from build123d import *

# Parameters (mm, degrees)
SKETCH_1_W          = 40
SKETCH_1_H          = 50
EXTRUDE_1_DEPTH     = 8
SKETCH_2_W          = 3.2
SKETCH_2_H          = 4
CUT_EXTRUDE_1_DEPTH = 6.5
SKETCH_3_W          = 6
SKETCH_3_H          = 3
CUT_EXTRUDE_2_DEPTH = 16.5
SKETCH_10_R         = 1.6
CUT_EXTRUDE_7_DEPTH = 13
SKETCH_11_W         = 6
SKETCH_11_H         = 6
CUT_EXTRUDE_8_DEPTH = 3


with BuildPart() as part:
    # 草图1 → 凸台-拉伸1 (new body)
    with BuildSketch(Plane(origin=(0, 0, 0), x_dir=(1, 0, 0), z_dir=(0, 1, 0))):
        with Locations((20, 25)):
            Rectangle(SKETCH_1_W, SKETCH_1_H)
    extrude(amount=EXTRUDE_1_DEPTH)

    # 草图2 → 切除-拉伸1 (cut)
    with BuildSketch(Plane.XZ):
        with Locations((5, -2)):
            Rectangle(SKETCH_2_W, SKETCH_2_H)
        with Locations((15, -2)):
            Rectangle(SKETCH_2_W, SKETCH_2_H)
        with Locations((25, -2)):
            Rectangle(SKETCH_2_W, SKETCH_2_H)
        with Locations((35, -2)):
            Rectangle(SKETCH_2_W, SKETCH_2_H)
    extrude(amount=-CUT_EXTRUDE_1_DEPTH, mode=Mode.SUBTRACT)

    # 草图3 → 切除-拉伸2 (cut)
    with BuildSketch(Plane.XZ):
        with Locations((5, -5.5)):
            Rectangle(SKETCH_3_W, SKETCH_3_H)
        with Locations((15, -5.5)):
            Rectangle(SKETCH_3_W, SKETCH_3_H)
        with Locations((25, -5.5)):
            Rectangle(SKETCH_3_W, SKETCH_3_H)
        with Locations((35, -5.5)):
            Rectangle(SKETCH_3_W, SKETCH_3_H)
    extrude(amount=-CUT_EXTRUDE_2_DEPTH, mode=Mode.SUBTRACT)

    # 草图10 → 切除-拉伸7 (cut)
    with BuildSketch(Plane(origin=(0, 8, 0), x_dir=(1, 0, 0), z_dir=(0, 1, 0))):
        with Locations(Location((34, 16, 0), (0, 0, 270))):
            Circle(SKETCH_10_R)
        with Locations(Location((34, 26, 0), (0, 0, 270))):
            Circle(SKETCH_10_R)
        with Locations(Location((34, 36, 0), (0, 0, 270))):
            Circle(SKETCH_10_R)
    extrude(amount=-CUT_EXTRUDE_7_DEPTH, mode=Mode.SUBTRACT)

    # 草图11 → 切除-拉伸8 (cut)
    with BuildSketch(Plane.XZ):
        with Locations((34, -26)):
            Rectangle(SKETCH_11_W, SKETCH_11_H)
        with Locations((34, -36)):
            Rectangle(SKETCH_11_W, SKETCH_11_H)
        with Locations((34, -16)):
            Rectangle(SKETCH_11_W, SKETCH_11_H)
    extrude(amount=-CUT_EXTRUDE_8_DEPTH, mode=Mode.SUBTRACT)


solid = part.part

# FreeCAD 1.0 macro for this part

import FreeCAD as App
import Part
import Sketcher
Q = App.Units.Quantity

doc = App.newDocument("Part")
params = doc.addObject("Spreadsheet::Sheet", "Params")
for row, (alias, value) in enumerate([
    ("sketch1_width", "40 mm"),
    ("sketch1_height", "50 mm"),
    ("pad1_length", "8 mm"),
    ("sketch2_height", "4 mm"),
    ("sketch2_width", "3.2 mm"),
    ("pocket1_length", "6.5 mm"),
    ("sketch3_width", "6 mm"),
    ("sketch3_height", "3 mm"),
    ("pocket2_length", "16.5 mm"),
    ("sketch4_diameter", "3.2 mm"),
    ("pocket3_length", "13 mm"),
    ("sketch5_width", "6 mm"),
    ("pocket4_length", "3 mm"),
], start=1):
    params.set(f"A{row}", alias)
    params.set(f"B{row}", "=" + value)
    params.setAlias(f"B{row}", alias)

body = doc.addObject("PartDesign::Body", "Body")

sketch1 = doc.addObject("Sketcher::SketchObject", "Sketch")
body.addObject(sketch1)
sketch1.AttachmentSupport = (doc.XZ_Plane, [""])
sketch1.MapMode = "FlatFace"
sketch1.addGeometry(Part.LineSegment(App.Vector(0, -50, 0), App.Vector(0, 0, 0)), False)
sketch1.addGeometry(Part.LineSegment(App.Vector(0, 0, 0), App.Vector(40, 0, 0)), False)
sketch1.addGeometry(Part.LineSegment(App.Vector(40, 0, 0), App.Vector(40, -50, 0)), False)
sketch1.addGeometry(Part.LineSegment(App.Vector(40, -50, 0), App.Vector(0, -50, 0)), False)
sketch1.addConstraint(Sketcher.Constraint("Coincident", 0, 2, 1, 1))
sketch1.addConstraint(Sketcher.Constraint("Coincident", 1, 2, 2, 1))
sketch1.addConstraint(Sketcher.Constraint("Coincident", 2, 2, 3, 1))
sketch1.addConstraint(Sketcher.Constraint("Coincident", 3, 2, 0, 1))
sketch1.addConstraint(Sketcher.Constraint("Vertical", 0))
sketch1.addConstraint(Sketcher.Constraint("Horizontal", 1))
sketch1.addConstraint(Sketcher.Constraint("Vertical", 2))
sketch1.addConstraint(Sketcher.Constraint("Horizontal", 3))
sketch1.addConstraint(Sketcher.Constraint("Coincident", 0, 2, -1, 1))
sketch1.addConstraint(Sketcher.Constraint("DistanceX", 1, 1, 1, 2, Q("40 mm")))
sketch1.addConstraint(Sketcher.Constraint("DistanceY", 0, 1, 0, 2, Q("50 mm")))
sketch1.setExpression("Constraints[9]", "Params.sketch1_width")
sketch1.setExpression("Constraints[10]", "Params.sketch1_height")
pad1 = doc.addObject("PartDesign::Pad", "Pad")
body.addObject(pad1)
pad1.Profile = sketch1
pad1.setExpression("Length", "Params.pad1_length")
pad1.Reversed = True

sketch2 = doc.addObject("Sketcher::SketchObject", "Sketch001")
body.addObject(sketch2)
sketch2.AttachmentSupport = (doc.XZ_Plane, [""])
sketch2.MapMode = "FlatFace"
sketch2.addGeometry(Part.LineSegment(App.Vector(3.4, 0, 0), App.Vector(3.4, -4, 0)), False)
sketch2.addGeometry(Part.LineSegment(App.Vector(3.4, -4, 0), App.Vector(6.6, -4, 0)), False)
sketch2.addGeometry(Part.LineSegment(App.Vector(6.6, -4, 0), App.Vector(6.6, 0, 0)), False)
sketch2.addGeometry(Part.LineSegment(App.Vector(6.6, 0, 0), App.Vector(3.4, 0, 0)), False)
sketch2.addGeometry(Part.LineSegment(App.Vector(13.4, 0, 0), App.Vector(13.4, -4, 0)), False)
sketch2.addGeometry(Part.LineSegment(App.Vector(13.4, -4, 0), App.Vector(16.6, -4, 0)), False)
sketch2.addGeometry(Part.LineSegment(App.Vector(16.6, -4, 0), App.Vector(16.6, 0, 0)), False)
sketch2.addGeometry(Part.LineSegment(App.Vector(16.6, 0, 0), App.Vector(13.4, 0, 0)), False)
sketch2.addGeometry(Part.LineSegment(App.Vector(23.4, 0, 0), App.Vector(23.4, -4, 0)), False)
sketch2.addGeometry(Part.LineSegment(App.Vector(23.4, -4, 0), App.Vector(26.6, -4, 0)), False)
sketch2.addGeometry(Part.LineSegment(App.Vector(26.6, -4, 0), App.Vector(26.6, 0, 0)), False)
sketch2.addGeometry(Part.LineSegment(App.Vector(26.6, 0, 0), App.Vector(23.4, 0, 0)), False)
sketch2.addGeometry(Part.LineSegment(App.Vector(33.4, 0, 0), App.Vector(33.4, -4, 0)), False)
sketch2.addGeometry(Part.LineSegment(App.Vector(33.4, -4, 0), App.Vector(36.6, -4, 0)), False)
sketch2.addGeometry(Part.LineSegment(App.Vector(36.6, -4, 0), App.Vector(36.6, 0, 0)), False)
sketch2.addGeometry(Part.LineSegment(App.Vector(36.6, 0, 0), App.Vector(33.4, 0, 0)), False)
sketch2.addConstraint(Sketcher.Constraint("Coincident", 0, 2, 1, 1))
sketch2.addConstraint(Sketcher.Constraint("Coincident", 1, 2, 2, 1))
sketch2.addConstraint(Sketcher.Constraint("Coincident", 2, 2, 3, 1))
sketch2.addConstraint(Sketcher.Constraint("Coincident", 3, 2, 0, 1))
sketch2.addConstraint(Sketcher.Constraint("Coincident", 4, 2, 5, 1))
sketch2.addConstraint(Sketcher.Constraint("Coincident", 5, 2, 6, 1))
sketch2.addConstraint(Sketcher.Constraint("Coincident", 6, 2, 7, 1))
sketch2.addConstraint(Sketcher.Constraint("Coincident", 7, 2, 4, 1))
sketch2.addConstraint(Sketcher.Constraint("Coincident", 8, 2, 9, 1))
sketch2.addConstraint(Sketcher.Constraint("Coincident", 9, 2, 10, 1))
sketch2.addConstraint(Sketcher.Constraint("Coincident", 10, 2, 11, 1))
sketch2.addConstraint(Sketcher.Constraint("Coincident", 11, 2, 8, 1))
sketch2.addConstraint(Sketcher.Constraint("Coincident", 12, 2, 13, 1))
sketch2.addConstraint(Sketcher.Constraint("Coincident", 13, 2, 14, 1))
sketch2.addConstraint(Sketcher.Constraint("Coincident", 14, 2, 15, 1))
sketch2.addConstraint(Sketcher.Constraint("Coincident", 15, 2, 12, 1))
sketch2.addConstraint(Sketcher.Constraint("Vertical", 0))
sketch2.addConstraint(Sketcher.Constraint("Horizontal", 1))
sketch2.addConstraint(Sketcher.Constraint("Vertical", 2))
sketch2.addConstraint(Sketcher.Constraint("Horizontal", 3))
sketch2.addConstraint(Sketcher.Constraint("Vertical", 4))
sketch2.addConstraint(Sketcher.Constraint("Horizontal", 5))
sketch2.addConstraint(Sketcher.Constraint("Vertical", 6))
sketch2.addConstraint(Sketcher.Constraint("Horizontal", 7))
sketch2.addConstraint(Sketcher.Constraint("Vertical", 8))
sketch2.addConstraint(Sketcher.Constraint("Horizontal", 9))
sketch2.addConstraint(Sketcher.Constraint("Vertical", 10))
sketch2.addConstraint(Sketcher.Constraint("Horizontal", 11))
sketch2.addConstraint(Sketcher.Constraint("Vertical", 12))
sketch2.addConstraint(Sketcher.Constraint("Horizontal", 13))
sketch2.addConstraint(Sketcher.Constraint("Vertical", 14))
sketch2.addConstraint(Sketcher.Constraint("Horizontal", 15))
sketch2.addConstraint(Sketcher.Constraint("PointOnObject", 2, 2, -1))
sketch2.addConstraint(Sketcher.Constraint("PointOnObject", 6, 2, -1))
sketch2.addConstraint(Sketcher.Constraint("PointOnObject", 10, 2, -1))
sketch2.addConstraint(Sketcher.Constraint("PointOnObject", 14, 2, -1))
sketch2.addConstraint(Sketcher.Constraint("Horizontal", 1, 2, 4, 2))
sketch2.addConstraint(Sketcher.Constraint("Horizontal", 5, 2, 8, 2))
sketch2.addConstraint(Sketcher.Constraint("Horizontal", 9, 2, 12, 2))
sketch2.addConstraint(Sketcher.Constraint("Equal", 3, 5))
sketch2.addConstraint(Sketcher.Constraint("Equal", 7, 9))
sketch2.addConstraint(Sketcher.Constraint("Equal", 11, 13))
sketch2.addConstraint(Sketcher.Constraint("DistanceY", 0, 2, 0, 1, Q("4 mm")))
sketch2.addConstraint(Sketcher.Constraint("DistanceX", 1, 1, 1, 2, Q("3.2 mm")))
sketch2.addConstraint(Sketcher.Constraint("DistanceX", 0, 2, 4, 2, Q("10 mm")))
sketch2.addConstraint(Sketcher.Constraint("DistanceX", 4, 2, 8, 2, Q("10 mm")))
sketch2.addConstraint(Sketcher.Constraint("DistanceX", 8, 2, 12, 2, Q("10 mm")))
sketch2.addConstraint(Sketcher.Constraint("DistanceX", -1, 1, 0, 2, Q("3.4 mm")))
sketch2.setExpression("Constraints[42]", "Params.sketch2_height")
sketch2.setExpression("Constraints[43]", "Params.sketch2_width")
pocket1 = doc.addObject("PartDesign::Pocket", "Pocket")
body.addObject(pocket1)
pocket1.Profile = sketch2
pocket1.setExpression("Length", "Params.pocket1_length")

sketch3 = doc.addObject("Sketcher::SketchObject", "Sketch002")
body.addObject(sketch3)
sketch3.AttachmentSupport = (doc.XZ_Plane, [""])
sketch3.MapMode = "FlatFace"
sketch3.addGeometry(Part.LineSegment(App.Vector(2, -4, 0), App.Vector(2, -7, 0)), False)
sketch3.addGeometry(Part.LineSegment(App.Vector(2, -7, 0), App.Vector(8, -7, 0)), False)
sketch3.addGeometry(Part.LineSegment(App.Vector(8, -7, 0), App.Vector(8, -4, 0)), False)
sketch3.addGeometry(Part.LineSegment(App.Vector(8, -4, 0), App.Vector(2, -4, 0)), False)
sketch3.addGeometry(Part.LineSegment(App.Vector(12, -4, 0), App.Vector(12, -7, 0)), False)
sketch3.addGeometry(Part.LineSegment(App.Vector(12, -7, 0), App.Vector(18, -7, 0)), False)
sketch3.addGeometry(Part.LineSegment(App.Vector(18, -7, 0), App.Vector(18, -4, 0)), False)
sketch3.addGeometry(Part.LineSegment(App.Vector(18, -4, 0), App.Vector(12, -4, 0)), False)
sketch3.addGeometry(Part.LineSegment(App.Vector(22, -4, 0), App.Vector(22, -7, 0)), False)
sketch3.addGeometry(Part.LineSegment(App.Vector(22, -7, 0), App.Vector(28, -7, 0)), False)
sketch3.addGeometry(Part.LineSegment(App.Vector(28, -7, 0), App.Vector(28, -4, 0)), False)
sketch3.addGeometry(Part.LineSegment(App.Vector(28, -4, 0), App.Vector(22, -4, 0)), False)
sketch3.addGeometry(Part.LineSegment(App.Vector(32, -4, 0), App.Vector(32, -7, 0)), False)
sketch3.addGeometry(Part.LineSegment(App.Vector(32, -7, 0), App.Vector(38, -7, 0)), False)
sketch3.addGeometry(Part.LineSegment(App.Vector(38, -7, 0), App.Vector(38, -4, 0)), False)
sketch3.addGeometry(Part.LineSegment(App.Vector(38, -4, 0), App.Vector(32, -4, 0)), False)
sketch3.addConstraint(Sketcher.Constraint("Coincident", 0, 2, 1, 1))
sketch3.addConstraint(Sketcher.Constraint("Coincident", 1, 2, 2, 1))
sketch3.addConstraint(Sketcher.Constraint("Coincident", 2, 2, 3, 1))
sketch3.addConstraint(Sketcher.Constraint("Coincident", 3, 2, 0, 1))
sketch3.addConstraint(Sketcher.Constraint("Coincident", 4, 2, 5, 1))
sketch3.addConstraint(Sketcher.Constraint("Coincident", 5, 2, 6, 1))
sketch3.addConstraint(Sketcher.Constraint("Coincident", 6, 2, 7, 1))
sketch3.addConstraint(Sketcher.Constraint("Coincident", 7, 2, 4, 1))
sketch3.addConstraint(Sketcher.Constraint("Coincident", 8, 2, 9, 1))
sketch3.addConstraint(Sketcher.Constraint("Coincident", 9, 2, 10, 1))
sketch3.addConstraint(Sketcher.Constraint("Coincident", 10, 2, 11, 1))
sketch3.addConstraint(Sketcher.Constraint("Coincident", 11, 2, 8, 1))
sketch3.addConstraint(Sketcher.Constraint("Coincident", 12, 2, 13, 1))
sketch3.addConstraint(Sketcher.Constraint("Coincident", 13, 2, 14, 1))
sketch3.addConstraint(Sketcher.Constraint("Coincident", 14, 2, 15, 1))
sketch3.addConstraint(Sketcher.Constraint("Coincident", 15, 2, 12, 1))
sketch3.addConstraint(Sketcher.Constraint("Vertical", 0))
sketch3.addConstraint(Sketcher.Constraint("Horizontal", 1))
sketch3.addConstraint(Sketcher.Constraint("Vertical", 2))
sketch3.addConstraint(Sketcher.Constraint("Horizontal", 3))
sketch3.addConstraint(Sketcher.Constraint("Vertical", 4))
sketch3.addConstraint(Sketcher.Constraint("Horizontal", 5))
sketch3.addConstraint(Sketcher.Constraint("Vertical", 6))
sketch3.addConstraint(Sketcher.Constraint("Horizontal", 7))
sketch3.addConstraint(Sketcher.Constraint("Vertical", 8))
sketch3.addConstraint(Sketcher.Constraint("Horizontal", 9))
sketch3.addConstraint(Sketcher.Constraint("Vertical", 10))
sketch3.addConstraint(Sketcher.Constraint("Horizontal", 11))
sketch3.addConstraint(Sketcher.Constraint("Vertical", 12))
sketch3.addConstraint(Sketcher.Constraint("Horizontal", 13))
sketch3.addConstraint(Sketcher.Constraint("Vertical", 14))
sketch3.addConstraint(Sketcher.Constraint("Horizontal", 15))
sketch3.addConstraint(Sketcher.Constraint("Horizontal", 1, 2, 4, 2))
sketch3.addConstraint(Sketcher.Constraint("Horizontal", 3, 2, 6, 2))
sketch3.addConstraint(Sketcher.Constraint("Horizontal", 5, 2, 8, 2))
sketch3.addConstraint(Sketcher.Constraint("Horizontal", 7, 2, 10, 2))
sketch3.addConstraint(Sketcher.Constraint("Horizontal", 9, 2, 12, 2))
sketch3.addConstraint(Sketcher.Constraint("Horizontal", 11, 2, 14, 2))
sketch3.addConstraint(Sketcher.Constraint("Equal", 3, 5))
sketch3.addConstraint(Sketcher.Constraint("Equal", 7, 9))
sketch3.addConstraint(Sketcher.Constraint("Equal", 11, 13))
sketch3.addConstraint(Sketcher.Constraint("DistanceX", 1, 1, 1, 2, Q("6 mm")))
sketch3.addConstraint(Sketcher.Constraint("DistanceY", 0, 2, 0, 1, Q("3 mm")))
sketch3.addConstraint(Sketcher.Constraint("DistanceX", -1, 1, 0, 2, Q("2 mm")))
sketch3.addConstraint(Sketcher.Constraint("DistanceY", 0, 2, -1, 1, Q("7 mm")))
sketch3.addConstraint(Sketcher.Constraint("DistanceX", -1, 1, 4, 2, Q("12 mm")))
sketch3.addConstraint(Sketcher.Constraint("DistanceX", -1, 1, 8, 2, Q("22 mm")))
sketch3.addConstraint(Sketcher.Constraint("DistanceX", -1, 1, 12, 2, Q("32 mm")))
sketch3.setExpression("Constraints[41]", "Params.sketch3_width")
sketch3.setExpression("Constraints[42]", "Params.sketch3_height")
pocket2 = doc.addObject("PartDesign::Pocket", "Pocket001")
body.addObject(pocket2)
pocket2.Profile = sketch3
pocket2.setExpression("Length", "Params.pocket2_length")

sketch4 = doc.addObject("Sketcher::SketchObject", "Sketch003")
body.addObject(sketch4)
sketch4.AttachmentSupport = (doc.XZ_Plane, [""])
sketch4.MapMode = "FlatFace"
sketch4.AttachmentOffset = App.Placement(App.Vector(0, 0, -8), App.Rotation())
sketch4.addGeometry(Part.Circle(App.Vector(34, -16, 0), App.Vector(0, 0, 1), 1.6), False)
sketch4.addGeometry(Part.Circle(App.Vector(34, -26, 0), App.Vector(0, 0, 1), 1.6), False)
sketch4.addGeometry(Part.Circle(App.Vector(34, -36, 0), App.Vector(0, 0, 1), 1.6), False)
sketch4.addConstraint(Sketcher.Constraint("Equal", 0, 1))
sketch4.addConstraint(Sketcher.Constraint("Equal", 1, 2))
sketch4.addConstraint(Sketcher.Constraint("Vertical", 0, 3, 1, 3))
sketch4.addConstraint(Sketcher.Constraint("Vertical", 1, 3, 2, 3))
sketch4.addConstraint(Sketcher.Constraint("Diameter", 0, Q("3.2 mm")))
sketch4.addConstraint(Sketcher.Constraint("DistanceX", -1, 1, 0, 3, Q("34 mm")))
sketch4.addConstraint(Sketcher.Constraint("DistanceY", 0, 3, -1, 1, Q("16 mm")))
sketch4.addConstraint(Sketcher.Constraint("DistanceY", 1, 3, -1, 1, Q("26 mm")))
sketch4.addConstraint(Sketcher.Constraint("DistanceY", 2, 3, -1, 1, Q("36 mm")))
sketch4.setExpression("Constraints[4]", "Params.sketch4_diameter")
pocket3 = doc.addObject("PartDesign::Pocket", "Pocket002")
body.addObject(pocket3)
pocket3.Profile = sketch4
pocket3.setExpression("Length", "Params.pocket3_length")
pocket3.Reversed = True

sketch5 = doc.addObject("Sketcher::SketchObject", "Sketch004")
body.addObject(sketch5)
sketch5.AttachmentSupport = (doc.XZ_Plane, [""])
sketch5.MapMode = "FlatFace"
sketch5.addGeometry(Part.LineSegment(App.Vector(31, -23, 0), App.Vector(31, -29, 0)), False)
sketch5.addGeometry(Part.LineSegment(App.Vector(31, -29, 0), App.Vector(37, -29, 0)), False)
sketch5.addGeometry(Part.LineSegment(App.Vector(37, -29, 0), App.Vector(37, -23, 0)), False)
sketch5.addGeometry(Part.LineSegment(App.Vector(37, -23, 0), App.Vector(31, -23, 0)), False)
sketch5.addGeometry(Part.LineSegment(App.Vector(31, -33, 0), App.Vector(31, -39, 0)), False)
sketch5.addGeometry(Part.LineSegment(App.Vector(31, -39, 0), App.Vector(37, -39, 0)), False)
sketch5.addGeometry(Part.LineSegment(App.Vector(37, -39, 0), App.Vector(37, -33, 0)), False)
sketch5.addGeometry(Part.LineSegment(App.Vector(37, -33, 0), App.Vector(31, -33, 0)), False)
sketch5.addGeometry(Part.LineSegment(App.Vector(31, -13, 0), App.Vector(31, -19, 0)), False)
sketch5.addGeometry(Part.LineSegment(App.Vector(31, -19, 0), App.Vector(37, -19, 0)), False)
sketch5.addGeometry(Part.LineSegment(App.Vector(37, -19, 0), App.Vector(37, -13, 0)), False)
sketch5.addGeometry(Part.LineSegment(App.Vector(37, -13, 0), App.Vector(31, -13, 0)), False)
sketch5.addConstraint(Sketcher.Constraint("Coincident", 0, 2, 1, 1))
sketch5.addConstraint(Sketcher.Constraint("Coincident", 1, 2, 2, 1))
sketch5.addConstraint(Sketcher.Constraint("Coincident", 2, 2, 3, 1))
sketch5.addConstraint(Sketcher.Constraint("Coincident", 3, 2, 0, 1))
sketch5.addConstraint(Sketcher.Constraint("Coincident", 4, 2, 5, 1))
sketch5.addConstraint(Sketcher.Constraint("Coincident", 5, 2, 6, 1))
sketch5.addConstraint(Sketcher.Constraint("Coincident", 6, 2, 7, 1))
sketch5.addConstraint(Sketcher.Constraint("Coincident", 7, 2, 4, 1))
sketch5.addConstraint(Sketcher.Constraint("Coincident", 8, 2, 9, 1))
sketch5.addConstraint(Sketcher.Constraint("Coincident", 9, 2, 10, 1))
sketch5.addConstraint(Sketcher.Constraint("Coincident", 10, 2, 11, 1))
sketch5.addConstraint(Sketcher.Constraint("Coincident", 11, 2, 8, 1))
sketch5.addConstraint(Sketcher.Constraint("Vertical", 0))
sketch5.addConstraint(Sketcher.Constraint("Horizontal", 1))
sketch5.addConstraint(Sketcher.Constraint("Vertical", 2))
sketch5.addConstraint(Sketcher.Constraint("Horizontal", 3))
sketch5.addConstraint(Sketcher.Constraint("Vertical", 4))
sketch5.addConstraint(Sketcher.Constraint("Horizontal", 5))
sketch5.addConstraint(Sketcher.Constraint("Vertical", 6))
sketch5.addConstraint(Sketcher.Constraint("Horizontal", 7))
sketch5.addConstraint(Sketcher.Constraint("Vertical", 8))
sketch5.addConstraint(Sketcher.Constraint("Horizontal", 9))
sketch5.addConstraint(Sketcher.Constraint("Vertical", 10))
sketch5.addConstraint(Sketcher.Constraint("Horizontal", 11))
sketch5.addConstraint(Sketcher.Constraint("Vertical", 3, 2, 4, 2))
sketch5.addConstraint(Sketcher.Constraint("Vertical", 2, 2, 5, 2))
sketch5.addConstraint(Sketcher.Constraint("Vertical", 7, 2, 8, 2))
sketch5.addConstraint(Sketcher.Constraint("Vertical", 6, 2, 9, 2))
sketch5.addConstraint(Sketcher.Constraint("Equal", 11, 0))
sketch5.addConstraint(Sketcher.Constraint("Equal", 2, 4))
sketch5.addConstraint(Sketcher.Constraint("Equal", 6, 8))
sketch5.addConstraint(Sketcher.Constraint("DistanceX", 1, 1, 1, 2, Q("6 mm")))
sketch5.addConstraint(Sketcher.Constraint("DistanceX", -1, 1, 0, 2, Q("31 mm")))
sketch5.addConstraint(Sketcher.Constraint("DistanceY", 0, 2, -1, 1, Q("29 mm")))
sketch5.addConstraint(Sketcher.Constraint("DistanceY", 4, 2, -1, 1, Q("39 mm")))
sketch5.addConstraint(Sketcher.Constraint("DistanceY", 8, 2, -1, 1, Q("19 mm")))
sketch5.setExpression("Constraints[31]", "Params.sketch5_width")
pocket4 = doc.addObject("PartDesign::Pocket", "Pocket003")
body.addObject(pocket4)
pocket4.Profile = sketch5
pocket4.setExpression("Length", "Params.pocket4_length")

doc.recompute()
